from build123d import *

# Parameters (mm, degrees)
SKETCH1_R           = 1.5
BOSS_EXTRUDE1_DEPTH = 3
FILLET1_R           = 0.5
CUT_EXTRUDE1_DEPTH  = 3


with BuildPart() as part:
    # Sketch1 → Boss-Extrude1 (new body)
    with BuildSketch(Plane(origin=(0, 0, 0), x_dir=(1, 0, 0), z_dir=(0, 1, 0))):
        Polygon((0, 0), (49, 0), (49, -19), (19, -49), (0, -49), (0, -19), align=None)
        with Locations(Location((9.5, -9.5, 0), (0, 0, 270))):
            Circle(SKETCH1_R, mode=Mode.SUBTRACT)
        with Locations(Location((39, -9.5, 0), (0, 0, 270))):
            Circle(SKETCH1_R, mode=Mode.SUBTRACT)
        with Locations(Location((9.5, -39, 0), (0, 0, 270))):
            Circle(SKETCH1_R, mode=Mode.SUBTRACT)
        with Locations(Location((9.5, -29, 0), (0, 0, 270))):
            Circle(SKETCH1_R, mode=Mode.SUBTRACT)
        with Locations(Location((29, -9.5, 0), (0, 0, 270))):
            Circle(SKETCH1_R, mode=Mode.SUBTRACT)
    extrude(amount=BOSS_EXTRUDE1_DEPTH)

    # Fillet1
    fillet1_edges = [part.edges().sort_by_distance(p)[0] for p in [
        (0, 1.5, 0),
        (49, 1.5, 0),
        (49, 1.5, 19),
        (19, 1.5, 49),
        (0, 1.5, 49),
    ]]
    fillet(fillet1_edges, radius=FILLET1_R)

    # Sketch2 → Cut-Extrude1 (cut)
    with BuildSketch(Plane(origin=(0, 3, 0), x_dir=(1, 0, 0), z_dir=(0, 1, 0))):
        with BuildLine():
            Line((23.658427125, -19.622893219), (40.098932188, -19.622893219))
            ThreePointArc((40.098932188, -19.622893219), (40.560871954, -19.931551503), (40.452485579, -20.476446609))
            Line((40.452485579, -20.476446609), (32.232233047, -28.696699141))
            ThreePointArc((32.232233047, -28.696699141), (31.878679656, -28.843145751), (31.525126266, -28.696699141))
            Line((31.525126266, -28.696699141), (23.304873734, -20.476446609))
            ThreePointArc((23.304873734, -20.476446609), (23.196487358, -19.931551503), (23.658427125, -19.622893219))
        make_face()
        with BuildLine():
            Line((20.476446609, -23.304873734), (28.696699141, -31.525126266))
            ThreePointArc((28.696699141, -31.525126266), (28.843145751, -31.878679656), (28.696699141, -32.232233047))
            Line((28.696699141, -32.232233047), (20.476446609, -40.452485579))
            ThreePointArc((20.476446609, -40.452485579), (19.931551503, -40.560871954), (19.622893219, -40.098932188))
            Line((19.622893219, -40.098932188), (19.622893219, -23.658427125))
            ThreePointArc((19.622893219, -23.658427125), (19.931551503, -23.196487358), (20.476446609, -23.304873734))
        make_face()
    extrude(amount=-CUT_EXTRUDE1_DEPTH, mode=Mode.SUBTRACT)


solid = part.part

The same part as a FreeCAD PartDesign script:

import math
import FreeCAD as App
import Part
import Sketcher

V = App.Vector


def edges_at(feature, points):
    """Names of the edges that pass closest to the given points."""
    edges = feature.Shape.Edges
    near = lambda p: min(range(len(edges)), key=lambda i: edges[i].distToShape(Part.Vertex(*p))[0])
    return sorted({f"Edge{near(p) + 1}" for p in points})

doc = App.newDocument("Part")
params = doc.addObject("Spreadsheet::Sheet", "Params")
for row, (alias, value) in enumerate([
    ("sketch1_diameter", "3 mm"),
    ("sketch1_width", "49 mm"),
    ("sketch1_width2", "19 mm"),
    ("pad1_length", "3 mm"),
    ("fillet_radius", "0.5 mm"),
    ("sketch2_radius", "0.5 mm"),
    ("pocket1_length", "3 mm"),
], start=1):
    params.set(f"A{row}", alias)
    params.set(f"B{row}", "=" + value)
    params.setAlias(f"B{row}", alias)

body = doc.addObject("PartDesign::Body", "Body")

sketch1 = body.newObject("Sketcher::SketchObject", "Sketch")
sketch1.AttachmentSupport = (doc.getObject("XZ_Plane"), [""])
sketch1.MapMode = "FlatFace"
sketch1.addGeometry([
    Part.LineSegment(V(49, 0, 0), V(0, 0, 0)),
    Part.LineSegment(V(0, 0, 0), V(0, 49, 0)),
    Part.LineSegment(V(0, 49, 0), V(19, 49, 0)),
    Part.LineSegment(V(19, 49, 0), V(49, 19, 0)),
    Part.LineSegment(V(49, 19, 0), V(49, 0, 0)),
    Part.Circle(V(9.5, 39, 0), V(0, 0, 1), 1.5),
    Part.Circle(V(9.5, 29, 0), V(0, 0, 1), 1.5),
    Part.Circle(V(39, 9.5, 0), V(0, 0, 1), 1.5),
    Part.Circle(V(29, 9.5, 0), V(0, 0, 1), 1.5),
    Part.Circle(V(9.5, 9.5, 0), V(0, 0, 1), 1.5),
], False)
sketch1.addConstraint([
    Sketcher.Constraint("Coincident", 0, 2, 1, 1),
    Sketcher.Constraint("Coincident", 1, 2, 2, 1),
    Sketcher.Constraint("Coincident", 2, 2, 3, 1),
    Sketcher.Constraint("Coincident", 3, 2, 4, 1),
    Sketcher.Constraint("Coincident", 4, 2, 0, 1),
    Sketcher.Constraint("Horizontal", 0),
    Sketcher.Constraint("Vertical", 1),
    Sketcher.Constraint("Horizontal", 2),
    Sketcher.Constraint("Vertical", 4),
    Sketcher.Constraint("Coincident", 0, 2, -1, 1),
    Sketcher.Constraint("Equal", 5, 6),
    Sketcher.Constraint("Equal", 6, 7),
    Sketcher.Constraint("Equal", 7, 8),
    Sketcher.Constraint("Equal", 8, 9),
    Sketcher.Constraint("Horizontal", 7, 3, 8, 3),
    Sketcher.Constraint("Horizontal", 8, 3, 9, 3),
    Sketcher.Constraint("Vertical", 5, 3, 6, 3),
    Sketcher.Constraint("Vertical", 6, 3, 9, 3),
    Sketcher.Constraint("Equal", 0, 1),
    Sketcher.Constraint("Equal", 2, 4),
    Sketcher.Constraint("Diameter", 5, 3.0),
    Sketcher.Constraint("DistanceX", 0, 2, 0, 1, 49.0),
    Sketcher.Constraint("DistanceX", 2, 1, 2, 2, 19.0),
    Sketcher.Constraint("DistanceY", -1, 1, 5, 3, 39.0),
    Sketcher.Constraint("DistanceY", -1, 1, 6, 3, 29.0),
    Sketcher.Constraint("DistanceX", -1, 1, 7, 3, 39.0),
    Sketcher.Constraint("DistanceX", -1, 1, 8, 3, 29.0),
    Sketcher.Constraint("DistanceX", -1, 1, 5, 3, 9.5),
    Sketcher.Constraint("DistanceY", -1, 1, 7, 3, 9.5),
])
sketch1.setExpression("Constraints[20]", "Params.sketch1_diameter")
sketch1.setExpression("Constraints[21]", "Params.sketch1_width")
sketch1.setExpression("Constraints[22]", "Params.sketch1_width2")
pad1 = body.newObject("PartDesign::Pad", "Pad")
pad1.Profile = sketch1
pad1.setExpression("Length", "Params.pad1_length")
pad1.Reversed = True
doc.recompute()

fillet = body.newObject("PartDesign::Fillet", "Fillet")
fillet.Base = (pad1, edges_at(pad1, [
    (0, 1.5, 0),
    (49, 1.5, 0),
    (49, 1.5, 19),
    (19, 1.5, 49),
    (0, 1.5, 49),
]))
fillet.setExpression("Radius", "Params.fillet_radius")

sketch2 = body.newObject("Sketcher::SketchObject", "Sketch001")
sketch2.AttachmentSupport = (doc.getObject("XZ_Plane"), [""])
sketch2.MapMode = "FlatFace"
sketch2.AttachmentOffset = App.Placement(V(0, 0, -3), App.Rotation())
sketch2.addGeometry([
    Part.LineSegment(V(40.1, 19.62, 0), V(23.66, 19.62, 0)),
    Part.ArcOfCircle(Part.Circle(V(23.66, 20.12, 0), V(0, 0, 1), 0.5), math.radians(135), math.radians(270)),
    Part.LineSegment(V(23.3, 20.48, 0), V(31.53, 28.7, 0)),
    Part.ArcOfCircle(Part.Circle(V(31.88, 28.34, 0), V(0, 0, 1), 0.5), math.radians(45), math.radians(135)),
    Part.LineSegment(V(32.23, 28.7, 0), V(40.45, 20.48, 0)),
    Part.ArcOfCircle(Part.Circle(V(40.1, 20.12, 0), V(0, 0, 1), 0.5), math.radians(-90), math.radians(45)),
    Part.LineSegment(V(28.7, 31.53, 0), V(20.48, 23.3, 0)),
    Part.ArcOfCircle(Part.Circle(V(20.12, 23.66, 0), V(0, 0, 1), 0.5), math.radians(180), math.radians(315)),
    Part.LineSegment(V(19.62, 23.66, 0), V(19.62, 40.1, 0)),
    Part.ArcOfCircle(Part.Circle(V(20.12, 40.1, 0), V(0, 0, 1), 0.5), math.radians(45), math.radians(180)),
    Part.LineSegment(V(20.48, 40.45, 0), V(28.7, 32.23, 0)),
    Part.ArcOfCircle(Part.Circle(V(28.34, 31.88, 0), V(0, 0, 1), 0.5), math.radians(-45), math.radians(45)),
], False)
sketch2.addConstraint([
    Sketcher.Constraint("Tangent", 0, 2, 1, 2),
    Sketcher.Constraint("Tangent", 1, 1, 2, 1),
    Sketcher.Constraint("Tangent", 2, 2, 3, 2),
    Sketcher.Constraint("Tangent", 3, 1, 4, 1),
    Sketcher.Constraint("Tangent", 4, 2, 5, 2),
    Sketcher.Constraint("Tangent", 5, 1, 0, 1),
    Sketcher.Constraint("Tangent", 6, 2, 7, 2),
    Sketcher.Constraint("Tangent", 7, 1, 8, 1),
    Sketcher.Constraint("Tangent", 8, 2, 9, 2),
    Sketcher.Constraint("Tangent", 9, 1, 10, 1),
    Sketcher.Constraint("Tangent", 10, 2, 11, 2),
    Sketcher.Constraint("Tangent", 11, 1, 6, 1),
    Sketcher.Constraint("Horizontal", 0),
    Sketcher.Constraint("Vertical", 8),
    Sketcher.Constraint("Equal", 1, 3),
    Sketcher.Constraint("Equal", 3, 5),
    Sketcher.Constraint("Equal", 5, 7),
    Sketcher.Constraint("Equal", 7, 9),
    Sketcher.Constraint("Equal", 9, 11),
    Sketcher.Constraint("Perpendicular", 2, 4),
    Sketcher.Constraint("Perpendicular", 4, 6),
    Sketcher.Constraint("Perpendicular", 6, 10),
    Sketcher.Constraint("Horizontal", 2, 2, 3, 1),
    Sketcher.Constraint("Equal", 0, 8),
    Sketcher.Constraint("Radius", 1, 0.5),
    Sketcher.Constraint("DistanceY", -1, 1, 2, 2, 28.696699),
    Sketcher.Constraint("DistanceX", -1, 1, 10, 2, 28.696699),
    Sketcher.Constraint("DistanceY", 1, 1, 3, 3, 7.866699),
    Sketcher.Constraint("DistanceX", -1, 1, 3, 3, 31.87868),
    Sketcher.Constraint("DistanceY", -1, 1, 11, 3, 31.87868),
])
sketch2.setExpression("Constraints[24]", "Params.sketch2_radius")
pocket1 = body.newObject("PartDesign::Pocket", "Pocket")
pocket1.Profile = sketch2
pocket1.setExpression("Length", "Params.pocket1_length")
pocket1.Reversed = True

doc.recompute()
